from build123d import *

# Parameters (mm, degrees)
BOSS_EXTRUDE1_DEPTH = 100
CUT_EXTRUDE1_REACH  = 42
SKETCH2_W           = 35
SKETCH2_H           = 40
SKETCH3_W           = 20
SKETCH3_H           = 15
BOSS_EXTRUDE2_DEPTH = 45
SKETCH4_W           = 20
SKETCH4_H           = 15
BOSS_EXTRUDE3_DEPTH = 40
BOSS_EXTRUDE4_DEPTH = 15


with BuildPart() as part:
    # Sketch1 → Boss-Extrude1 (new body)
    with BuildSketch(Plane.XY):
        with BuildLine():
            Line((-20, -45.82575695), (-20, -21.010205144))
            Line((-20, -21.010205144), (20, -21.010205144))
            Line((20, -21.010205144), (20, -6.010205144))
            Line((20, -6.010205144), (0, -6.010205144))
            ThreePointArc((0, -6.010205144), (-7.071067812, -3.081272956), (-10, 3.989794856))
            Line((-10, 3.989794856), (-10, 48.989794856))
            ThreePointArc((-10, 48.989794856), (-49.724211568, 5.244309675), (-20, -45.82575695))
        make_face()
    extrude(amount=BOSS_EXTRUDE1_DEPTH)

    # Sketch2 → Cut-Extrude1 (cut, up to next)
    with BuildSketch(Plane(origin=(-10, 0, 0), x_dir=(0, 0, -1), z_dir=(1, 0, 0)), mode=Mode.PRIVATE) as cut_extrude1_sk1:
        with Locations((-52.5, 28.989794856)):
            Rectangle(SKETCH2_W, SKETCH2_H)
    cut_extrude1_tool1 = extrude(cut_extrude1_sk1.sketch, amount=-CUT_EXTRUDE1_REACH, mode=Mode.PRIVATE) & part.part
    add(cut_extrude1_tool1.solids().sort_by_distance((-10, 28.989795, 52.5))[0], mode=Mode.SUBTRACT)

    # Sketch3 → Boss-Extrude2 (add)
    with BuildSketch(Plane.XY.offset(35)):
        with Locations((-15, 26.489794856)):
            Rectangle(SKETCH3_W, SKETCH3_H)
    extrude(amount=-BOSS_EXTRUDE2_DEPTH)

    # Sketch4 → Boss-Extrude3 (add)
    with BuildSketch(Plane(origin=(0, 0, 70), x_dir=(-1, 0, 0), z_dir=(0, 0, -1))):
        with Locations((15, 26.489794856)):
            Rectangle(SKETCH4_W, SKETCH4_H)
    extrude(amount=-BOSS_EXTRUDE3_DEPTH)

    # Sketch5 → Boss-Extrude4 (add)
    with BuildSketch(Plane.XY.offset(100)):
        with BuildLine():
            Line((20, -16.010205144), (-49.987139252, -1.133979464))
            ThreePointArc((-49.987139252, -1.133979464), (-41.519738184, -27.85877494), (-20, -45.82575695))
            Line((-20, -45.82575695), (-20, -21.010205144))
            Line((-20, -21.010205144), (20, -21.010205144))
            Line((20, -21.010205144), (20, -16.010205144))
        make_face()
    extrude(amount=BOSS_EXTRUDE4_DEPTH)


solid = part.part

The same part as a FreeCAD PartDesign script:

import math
import FreeCAD as App
import Part
import Sketcher
Q = App.Units.Quantity


def add_polygon(sketch, points):
    """Adds a closed chain of lines whose ends are joined by coincident constraints."""
    first, n = sketch.GeometryCount, len(points)
    for a, b in zip(points, points[1:] + points[:1]):
        sketch.addGeometry(Part.LineSegment(App.Vector(*a, 0), App.Vector(*b, 0)), False)
    for i in range(n):
        sketch.addConstraint(Sketcher.Constraint("Coincident", first + i, 2, first + (i + 1) % n, 1))

doc = App.newDocument("Part")
params = doc.addObject("Spreadsheet::Sheet", "Params")
for row, (alias, value) in enumerate([
    ("sketch1_radius", "10 mm"),
    ("sketch1_radius2", "50 mm"),
    ("sketch1_width", "40 mm"),
    ("sketch1_width2", "20 mm"),
    ("sketch1_height", "15 mm"),
    ("pad1_length", "100 mm"),
    ("sketch2_width", "40 mm"),
    ("sketch2_height", "35 mm"),
    ("pocket1_length", "39.185197 mm"),
    ("sketch3_width", "20 mm"),
    ("sketch3_height", "15 mm"),
    ("pad2_length", "45 mm"),
    ("sketch4_width", "20 mm"),
    ("sketch4_height", "15 mm"),
    ("pad3_length", "40 mm"),
    ("sketch5_radius", "50 mm"),
    ("sketch5_width", "40 mm"),
    ("sketch5_height", "5 mm"),
    ("pad4_length", "15 mm"),
], start=1):
    params.set(f"A{row}", alias)
    params.set(f"B{row}", "=" + value)
    params.setAlias(f"B{row}", alias)

body = doc.addObject("PartDesign::Body", "Body")

# Sketch on XY plane
sketch1 = body.newObject("Sketcher::SketchObject", "Sketch")
sketch1.AttachmentSupport = (doc.getObject("XY_Plane"), [""])
sketch1.MapMode = "FlatFace"
sketch1.addGeometry([
    Part.LineSegment(App.Vector(-20, -45.825757, 0), App.Vector(-20, -21.010205, 0)),  # 0
    Part.LineSegment(App.Vector(-20, -21.010205, 0), App.Vector(20, -21.010205, 0)),  # 1
    Part.LineSegment(App.Vector(20, -21.010205, 0), App.Vector(20, -6.010205, 0)),  # 2
    Part.LineSegment(App.Vector(20, -6.010205, 0), App.Vector(0, -6.010205, 0)),  # 3
    Part.ArcOfCircle(Part.Circle(App.Vector(0, 3.989795, 0), App.Vector(0, 0, 1), 10), math.radians(180), math.radians(270)),  # 4
    Part.LineSegment(App.Vector(-10, 3.989795, 0), App.Vector(-10, 48.989795, 0)),  # 5
    Part.ArcOfCircle(Part.Circle(App.Vector(0, 0, 0), App.Vector(0, 0, 1), 50), math.radians(101.536959), math.radians(246.421822)),  # 6
], False)
sketch1.addConstraint([
    Sketcher.Constraint("Coincident", 0, 2, 1, 1),
    Sketcher.Constraint("Coincident", 1, 2, 2, 1),
    Sketcher.Constraint("Coincident", 2, 2, 3, 1),
    Sketcher.Constraint("Tangent", 3, 2, 4, 2),
    Sketcher.Constraint("Tangent", 4, 1, 5, 1),
    Sketcher.Constraint("Coincident", 5, 2, 6, 1),
    Sketcher.Constraint("Coincident", 6, 2, 0, 1),
    Sketcher.Constraint("Vertical", 0),
    Sketcher.Constraint("Horizontal", 1),
    Sketcher.Constraint("Vertical", 2),
    Sketcher.Constraint("Horizontal", 3),
    Sketcher.Constraint("Vertical", 5),
    Sketcher.Constraint("Coincident", 6, 3, -1, 1),
    Sketcher.Constraint("PointOnObject", 4, 3, -2),
    Sketcher.Constraint("Radius", 4, Q("10 mm")),
    Sketcher.Constraint("Radius", 6, Q("50 mm")),
    Sketcher.Constraint("DistanceX", 1, 1, 1, 2, Q("40 mm")),
    Sketcher.Constraint("DistanceX", 3, 2, 3, 1, Q("20 mm")),
    Sketcher.Constraint("DistanceY", 2, 1, 2, 2, Q("15 mm")),
    Sketcher.Constraint("DistanceY", 5, 1, 5, 2, Q("45 mm")),
])
sketch1.setExpression("Constraints[14]", "Params.sketch1_radius")
sketch1.setExpression("Constraints[15]", "Params.sketch1_radius2")
sketch1.setExpression("Constraints[16]", "Params.sketch1_width")
sketch1.setExpression("Constraints[17]", "Params.sketch1_width2")
sketch1.setExpression("Constraints[18]", "Params.sketch1_height")
pad1 = body.newObject("PartDesign::Pad", "Pad")
pad1.Profile = sketch1
pad1.setExpression("Length", "Params.pad1_length")

# Sketch on YZ plane
sketch2 = body.newObject("Sketcher::SketchObject", "Sketch001")
sketch2.AttachmentSupport = (doc.getObject("YZ_Plane"), [""])
sketch2.MapMode = "FlatFace"
sketch2.AttachmentOffset = App.Placement(App.Vector(0, 0, -10), App.Rotation())
add_polygon(sketch2, [(48.989795, 70), (8.989795, 70), (8.989795, 35), (48.989795, 35)])  # lines 0-3
sketch2.addConstraint([
    Sketcher.Constraint("Horizontal", 0),
    Sketcher.Constraint("Vertical", 1),
    Sketcher.Constraint("Horizontal", 2),
    Sketcher.Constraint("Vertical", 3),
    Sketcher.Constraint("DistanceX", 0, 2, 0, 1, Q("40 mm")),
    Sketcher.Constraint("DistanceY", 1, 2, 1, 1, Q("35 mm")),
    Sketcher.Constraint("DistanceY", -1, 1, 0, 2, Q("70 mm")),
    Sketcher.Constraint("DistanceX", -1, 1, 0, 2, Q("8.989795 mm")),
])
sketch2.setExpression("Constraints[8]", "Params.sketch2_width")
sketch2.setExpression("Constraints[9]", "Params.sketch2_height")
pocket1 = body.newObject("PartDesign::Pocket", "Pocket")
pocket1.Profile = sketch2
pocket1.setExpression("Length", "Params.pocket1_length")

# Sketch on XY plane
sketch3 = body.newObject("Sketcher::SketchObject", "Sketch002")
sketch3.AttachmentSupport = (doc.getObject("XY_Plane"), [""])
sketch3.MapMode = "FlatFace"
sketch3.AttachmentOffset = App.Placement(App.Vector(0, 0, 35), App.Rotation())
add_polygon(sketch3, [(-25, 33.989795), (-25, 18.989795), (-5, 18.989795), (-5, 33.989795)])  # lines 0-3
sketch3.addConstraint([
    Sketcher.Constraint("Vertical", 0),
    Sketcher.Constraint("Horizontal", 1),
    Sketcher.Constraint("Vertical", 2),
    Sketcher.Constraint("Horizontal", 3),
    Sketcher.Constraint("DistanceX", 1, 1, 1, 2, Q("20 mm")),
    Sketcher.Constraint("DistanceY", 0, 2, 0, 1, Q("15 mm")),
    Sketcher.Constraint("DistanceX", 0, 2, -1, 1, Q("25 mm")),
    Sketcher.Constraint("DistanceY", -1, 1, 0, 2, Q("18.989795 mm")),
])
sketch3.setExpression("Constraints[8]", "Params.sketch3_width")
sketch3.setExpression("Constraints[9]", "Params.sketch3_height")
pad2 = body.newObject("PartDesign::Pad", "Pad001")
pad2.Profile = sketch3
pad2.setExpression("Length", "Params.pad2_length")
pad2.Reversed = True

# Sketch on XY plane
sketch4 = body.newObject("Sketcher::SketchObject", "Sketch003")
sketch4.AttachmentSupport = (doc.getObject("XY_Plane"), [""])
sketch4.MapMode = "FlatFace"
sketch4.AttachmentOffset = App.Placement(App.Vector(0, 0, 70), App.Rotation())
add_polygon(sketch4, [(-5, 33.989795), (-5, 18.989795), (-25, 18.989795), (-25, 33.989795)])  # lines 0-3
sketch4.addConstraint([
    Sketcher.Constraint("Vertical", 0),
    Sketcher.Constraint("Horizontal", 1),
    Sketcher.Constraint("Vertical", 2),
    Sketcher.Constraint("Horizontal", 3),
    Sketcher.Constraint("DistanceX", 1, 2, 1, 1, Q("20 mm")),
    Sketcher.Constraint("DistanceY", 0, 2, 0, 1, Q("15 mm")),
    Sketcher.Constraint("DistanceX", 0, 2, -1, 1, Q("5 mm")),
    Sketcher.Constraint("DistanceY", -1, 1, 0, 2, Q("18.989795 mm")),
])
sketch4.setExpression("Constraints[8]", "Params.sketch4_width")
sketch4.setExpression("Constraints[9]", "Params.sketch4_height")
pad3 = body.newObject("PartDesign::Pad", "Pad002")
pad3.Profile = sketch4
pad3.setExpression("Length", "Params.pad3_length")

# Sketch on XY plane
sketch5 = body.newObject("Sketcher::SketchObject", "Sketch004")
sketch5.AttachmentSupport = (doc.getObject("XY_Plane"), [""])
sketch5.MapMode = "FlatFace"
sketch5.AttachmentOffset = App.Placement(App.Vector(0, 0, 100), App.Rotation())
sketch5.addGeometry([
    Part.LineSegment(App.Vector(20, -16.010205, 0), App.Vector(-49.987139, -1.133979, 0)),  # 0
    Part.ArcOfCircle(Part.Circle(App.Vector(0, 0, 0), App.Vector(0, 0, 1), 50), math.radians(-178.700444), math.radians(-113.578178)),  # 1
    Part.LineSegment(App.Vector(-20, -45.825757, 0), App.Vector(-20, -21.010205, 0)),  # 2
    Part.LineSegment(App.Vector(-20, -21.010205, 0), App.Vector(20, -21.010205, 0)),  # 3
    Part.LineSegment(App.Vector(20, -21.010205, 0), App.Vector(20, -16.010205, 0)),  # 4
], False)
sketch5.addConstraint([
    Sketcher.Constraint("Coincident", 0, 2, 1, 1),
    Sketcher.Constraint("Coincident", 1, 2, 2, 1),
    Sketcher.Constraint("Coincident", 2, 2, 3, 1),
    Sketcher.Constraint("Coincident", 3, 2, 4, 1),
    Sketcher.Constraint("Coincident", 4, 2, 0, 1),
    Sketcher.Constraint("Vertical", 2),
    Sketcher.Constraint("Horizontal", 3),
    Sketcher.Constraint("Vertical", 4),
    Sketcher.Constraint("Coincident", 1, 3, -1, 1),
    Sketcher.Constraint("Radius", 1, Q("50 mm")),
    Sketcher.Constraint("DistanceX", 3, 1, 3, 2, Q("40 mm")),
    Sketcher.Constraint("DistanceY", 4, 1, 4, 2, Q("5 mm")),
    Sketcher.Constraint("Angle", 0, Q("168 deg")),
    Sketcher.Constraint("DistanceX", 1, 2, -1, 1, Q("20 mm")),
    Sketcher.Constraint("DistanceY", 2, 1, 2, 2, Q("24.815552 mm")),
])
sketch5.setExpression("Constraints[9]", "Params.sketch5_radius")
sketch5.setExpression("Constraints[10]", "Params.sketch5_width")
sketch5.setExpression("Constraints[11]", "Params.sketch5_height")
pad4 = body.newObject("PartDesign::Pad", "Pad003")
pad4.Profile = sketch5
pad4.setExpression("Length", "Params.pad4_length")

doc.recompute()
